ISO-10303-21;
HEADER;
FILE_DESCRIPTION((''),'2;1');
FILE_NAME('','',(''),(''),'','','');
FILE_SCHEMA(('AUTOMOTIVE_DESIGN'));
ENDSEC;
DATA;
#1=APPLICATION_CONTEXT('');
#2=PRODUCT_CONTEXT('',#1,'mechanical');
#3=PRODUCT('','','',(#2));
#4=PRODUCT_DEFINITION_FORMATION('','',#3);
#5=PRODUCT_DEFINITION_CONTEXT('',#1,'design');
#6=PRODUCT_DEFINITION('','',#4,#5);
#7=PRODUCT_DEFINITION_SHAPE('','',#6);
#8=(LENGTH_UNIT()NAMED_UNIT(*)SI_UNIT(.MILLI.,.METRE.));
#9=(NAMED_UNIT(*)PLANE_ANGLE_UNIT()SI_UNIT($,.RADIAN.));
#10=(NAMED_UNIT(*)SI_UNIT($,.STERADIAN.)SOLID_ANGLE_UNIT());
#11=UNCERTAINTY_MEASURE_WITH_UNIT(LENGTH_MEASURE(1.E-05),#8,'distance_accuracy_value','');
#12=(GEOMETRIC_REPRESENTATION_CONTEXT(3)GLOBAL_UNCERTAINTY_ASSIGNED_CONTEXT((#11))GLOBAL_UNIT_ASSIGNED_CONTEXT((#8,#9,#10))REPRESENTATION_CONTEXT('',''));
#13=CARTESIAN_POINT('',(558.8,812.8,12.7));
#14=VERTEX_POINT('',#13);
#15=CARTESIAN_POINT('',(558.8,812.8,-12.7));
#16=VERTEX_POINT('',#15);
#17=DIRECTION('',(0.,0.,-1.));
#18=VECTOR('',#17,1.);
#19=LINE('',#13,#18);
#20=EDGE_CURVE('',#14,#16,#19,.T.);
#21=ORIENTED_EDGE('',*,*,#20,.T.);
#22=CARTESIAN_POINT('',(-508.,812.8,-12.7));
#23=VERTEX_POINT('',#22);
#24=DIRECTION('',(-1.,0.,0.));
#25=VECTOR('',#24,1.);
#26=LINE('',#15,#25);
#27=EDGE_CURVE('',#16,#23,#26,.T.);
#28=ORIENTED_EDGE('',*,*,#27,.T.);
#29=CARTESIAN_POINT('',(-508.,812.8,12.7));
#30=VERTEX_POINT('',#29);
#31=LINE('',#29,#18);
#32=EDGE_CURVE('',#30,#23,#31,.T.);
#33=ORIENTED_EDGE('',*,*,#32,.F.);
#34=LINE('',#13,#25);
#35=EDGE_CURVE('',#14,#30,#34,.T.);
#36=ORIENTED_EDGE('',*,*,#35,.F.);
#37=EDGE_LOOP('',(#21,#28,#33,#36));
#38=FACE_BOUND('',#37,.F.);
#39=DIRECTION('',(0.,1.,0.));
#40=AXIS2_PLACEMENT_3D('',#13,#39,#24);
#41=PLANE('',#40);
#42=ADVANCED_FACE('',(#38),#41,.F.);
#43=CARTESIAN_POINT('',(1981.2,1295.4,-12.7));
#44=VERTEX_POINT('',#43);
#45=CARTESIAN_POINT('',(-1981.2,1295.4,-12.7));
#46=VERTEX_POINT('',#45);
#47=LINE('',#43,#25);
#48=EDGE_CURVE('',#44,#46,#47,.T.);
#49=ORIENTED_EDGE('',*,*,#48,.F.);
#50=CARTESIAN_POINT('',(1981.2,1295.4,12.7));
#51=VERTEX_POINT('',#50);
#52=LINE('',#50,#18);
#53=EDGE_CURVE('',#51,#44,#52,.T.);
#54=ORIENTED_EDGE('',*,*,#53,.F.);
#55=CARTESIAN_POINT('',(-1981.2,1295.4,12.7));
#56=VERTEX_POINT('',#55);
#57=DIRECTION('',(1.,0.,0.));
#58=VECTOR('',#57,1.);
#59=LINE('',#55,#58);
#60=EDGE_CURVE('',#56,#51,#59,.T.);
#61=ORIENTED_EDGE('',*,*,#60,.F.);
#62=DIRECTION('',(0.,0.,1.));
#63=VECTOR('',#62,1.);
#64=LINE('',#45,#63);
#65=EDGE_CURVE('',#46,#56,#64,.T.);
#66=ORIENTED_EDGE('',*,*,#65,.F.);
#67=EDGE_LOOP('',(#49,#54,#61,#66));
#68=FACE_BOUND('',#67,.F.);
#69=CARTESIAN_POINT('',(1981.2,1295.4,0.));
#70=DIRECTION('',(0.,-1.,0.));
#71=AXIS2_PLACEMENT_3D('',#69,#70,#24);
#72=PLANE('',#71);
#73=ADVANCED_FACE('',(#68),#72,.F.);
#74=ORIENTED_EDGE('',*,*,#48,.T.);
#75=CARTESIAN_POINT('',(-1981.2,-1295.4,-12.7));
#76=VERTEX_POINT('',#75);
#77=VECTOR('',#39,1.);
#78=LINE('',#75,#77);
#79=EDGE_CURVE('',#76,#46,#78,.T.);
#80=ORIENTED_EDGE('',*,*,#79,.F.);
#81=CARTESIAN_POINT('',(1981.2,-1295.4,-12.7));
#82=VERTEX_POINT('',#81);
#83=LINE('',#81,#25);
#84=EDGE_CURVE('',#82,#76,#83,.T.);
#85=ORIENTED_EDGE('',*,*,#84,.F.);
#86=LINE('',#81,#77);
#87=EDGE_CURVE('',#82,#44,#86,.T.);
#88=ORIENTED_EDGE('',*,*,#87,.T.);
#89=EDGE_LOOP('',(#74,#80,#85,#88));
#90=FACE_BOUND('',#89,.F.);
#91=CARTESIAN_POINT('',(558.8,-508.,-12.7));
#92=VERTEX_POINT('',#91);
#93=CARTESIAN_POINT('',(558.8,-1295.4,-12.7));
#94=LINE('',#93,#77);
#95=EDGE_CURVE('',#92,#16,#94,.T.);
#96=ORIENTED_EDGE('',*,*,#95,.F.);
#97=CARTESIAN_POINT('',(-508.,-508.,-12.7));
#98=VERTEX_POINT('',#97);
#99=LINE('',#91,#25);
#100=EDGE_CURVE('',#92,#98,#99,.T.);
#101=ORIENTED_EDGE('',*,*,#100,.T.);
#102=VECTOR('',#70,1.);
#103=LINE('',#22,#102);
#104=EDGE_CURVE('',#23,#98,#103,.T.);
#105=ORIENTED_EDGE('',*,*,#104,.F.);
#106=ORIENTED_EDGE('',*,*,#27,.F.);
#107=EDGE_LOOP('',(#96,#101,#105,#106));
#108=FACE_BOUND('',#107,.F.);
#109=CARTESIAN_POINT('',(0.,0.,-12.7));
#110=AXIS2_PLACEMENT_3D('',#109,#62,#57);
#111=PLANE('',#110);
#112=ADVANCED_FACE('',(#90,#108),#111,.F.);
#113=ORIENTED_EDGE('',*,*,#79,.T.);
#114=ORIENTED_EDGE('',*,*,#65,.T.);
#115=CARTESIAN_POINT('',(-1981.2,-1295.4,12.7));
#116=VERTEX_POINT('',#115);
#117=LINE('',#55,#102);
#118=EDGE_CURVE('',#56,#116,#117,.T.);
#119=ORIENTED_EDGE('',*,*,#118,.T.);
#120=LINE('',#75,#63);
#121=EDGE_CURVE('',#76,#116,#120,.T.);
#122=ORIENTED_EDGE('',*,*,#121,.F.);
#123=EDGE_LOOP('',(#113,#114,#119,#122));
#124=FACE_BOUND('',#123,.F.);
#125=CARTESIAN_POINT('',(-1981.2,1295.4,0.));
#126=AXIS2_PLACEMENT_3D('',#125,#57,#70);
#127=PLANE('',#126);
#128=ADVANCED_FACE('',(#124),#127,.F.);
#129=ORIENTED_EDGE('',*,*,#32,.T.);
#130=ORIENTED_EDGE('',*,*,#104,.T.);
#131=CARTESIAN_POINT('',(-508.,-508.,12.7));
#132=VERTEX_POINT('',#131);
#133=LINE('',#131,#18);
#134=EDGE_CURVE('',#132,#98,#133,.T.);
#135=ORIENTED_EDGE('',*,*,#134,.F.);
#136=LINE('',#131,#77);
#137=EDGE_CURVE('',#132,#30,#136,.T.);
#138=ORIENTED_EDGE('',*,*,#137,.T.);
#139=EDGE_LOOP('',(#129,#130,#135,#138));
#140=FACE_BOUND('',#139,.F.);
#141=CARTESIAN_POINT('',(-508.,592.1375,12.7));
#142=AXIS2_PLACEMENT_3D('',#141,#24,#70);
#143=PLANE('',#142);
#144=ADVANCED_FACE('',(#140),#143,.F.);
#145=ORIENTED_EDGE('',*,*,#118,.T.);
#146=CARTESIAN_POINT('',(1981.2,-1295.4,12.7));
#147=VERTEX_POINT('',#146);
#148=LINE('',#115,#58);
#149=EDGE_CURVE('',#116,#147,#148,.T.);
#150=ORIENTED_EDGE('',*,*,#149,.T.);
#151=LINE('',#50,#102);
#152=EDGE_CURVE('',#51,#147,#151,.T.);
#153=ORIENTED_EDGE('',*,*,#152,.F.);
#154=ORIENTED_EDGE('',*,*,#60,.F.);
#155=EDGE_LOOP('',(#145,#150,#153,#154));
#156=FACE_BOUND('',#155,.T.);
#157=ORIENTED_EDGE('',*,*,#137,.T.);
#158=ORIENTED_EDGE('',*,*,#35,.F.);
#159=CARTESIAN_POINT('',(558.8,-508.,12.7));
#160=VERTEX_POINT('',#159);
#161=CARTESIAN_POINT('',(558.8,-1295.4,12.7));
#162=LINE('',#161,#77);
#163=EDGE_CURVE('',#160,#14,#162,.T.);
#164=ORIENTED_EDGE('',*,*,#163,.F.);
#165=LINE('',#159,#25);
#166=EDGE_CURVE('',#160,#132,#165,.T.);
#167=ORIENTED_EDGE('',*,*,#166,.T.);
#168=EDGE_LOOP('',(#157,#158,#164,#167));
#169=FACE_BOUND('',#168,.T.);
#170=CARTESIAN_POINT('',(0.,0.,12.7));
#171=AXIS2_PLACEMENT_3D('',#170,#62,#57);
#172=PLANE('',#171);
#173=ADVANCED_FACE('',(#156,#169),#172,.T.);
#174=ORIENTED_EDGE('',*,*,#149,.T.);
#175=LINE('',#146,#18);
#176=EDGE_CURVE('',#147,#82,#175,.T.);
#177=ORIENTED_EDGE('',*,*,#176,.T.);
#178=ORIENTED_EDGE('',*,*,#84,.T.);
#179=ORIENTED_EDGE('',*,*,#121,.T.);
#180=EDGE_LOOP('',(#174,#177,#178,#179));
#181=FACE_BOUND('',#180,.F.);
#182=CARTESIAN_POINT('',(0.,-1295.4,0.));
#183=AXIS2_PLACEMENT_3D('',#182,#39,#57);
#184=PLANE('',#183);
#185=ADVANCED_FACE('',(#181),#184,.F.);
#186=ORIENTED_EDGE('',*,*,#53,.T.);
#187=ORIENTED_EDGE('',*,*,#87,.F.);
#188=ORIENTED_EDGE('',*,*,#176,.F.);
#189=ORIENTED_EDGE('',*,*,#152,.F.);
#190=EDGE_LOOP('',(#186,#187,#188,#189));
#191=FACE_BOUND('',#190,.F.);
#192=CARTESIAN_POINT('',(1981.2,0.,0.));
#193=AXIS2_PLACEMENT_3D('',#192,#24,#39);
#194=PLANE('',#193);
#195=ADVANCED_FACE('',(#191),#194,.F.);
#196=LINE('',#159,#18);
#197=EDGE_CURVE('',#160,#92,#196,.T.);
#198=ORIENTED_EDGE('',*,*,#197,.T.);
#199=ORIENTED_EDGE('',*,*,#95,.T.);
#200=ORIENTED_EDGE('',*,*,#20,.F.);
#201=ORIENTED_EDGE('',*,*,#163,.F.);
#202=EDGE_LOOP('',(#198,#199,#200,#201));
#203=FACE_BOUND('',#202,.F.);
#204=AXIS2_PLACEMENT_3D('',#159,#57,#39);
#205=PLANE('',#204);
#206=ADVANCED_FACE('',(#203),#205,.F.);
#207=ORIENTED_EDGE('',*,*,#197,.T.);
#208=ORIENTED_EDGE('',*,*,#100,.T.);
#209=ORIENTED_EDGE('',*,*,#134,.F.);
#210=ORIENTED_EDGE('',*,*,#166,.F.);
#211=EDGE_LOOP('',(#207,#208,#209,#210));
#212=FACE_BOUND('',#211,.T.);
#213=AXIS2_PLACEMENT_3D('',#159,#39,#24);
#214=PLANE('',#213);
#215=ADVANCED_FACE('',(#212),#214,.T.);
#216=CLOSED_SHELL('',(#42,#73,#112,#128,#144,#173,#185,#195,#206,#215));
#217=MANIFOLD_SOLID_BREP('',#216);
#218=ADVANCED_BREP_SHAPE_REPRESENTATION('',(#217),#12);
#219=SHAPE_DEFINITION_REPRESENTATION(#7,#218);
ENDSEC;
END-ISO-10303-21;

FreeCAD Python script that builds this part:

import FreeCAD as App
import Part
import Sketcher
Q = App.Units.Quantity

doc = App.newDocument("Part")
body = doc.addObject("PartDesign::Body", "Body")

sketch1 = doc.addObject("Sketcher::SketchObject", "Sketch")
body.addObject(sketch1)
sketch1.AttachmentSupport = (doc.XY_Plane, [""])
sketch1.MapMode = "FlatFace"
sketch1.addGeometry([
    Part.LineSegment(App.Vector(1981, 1295, 0), App.Vector(-1981, 1295, 0)),
    Part.LineSegment(App.Vector(-1981, 1295, 0), App.Vector(-1981, -1295, 0)),
    Part.LineSegment(App.Vector(-1981, -1295, 0), App.Vector(1981, -1295, 0)),
    Part.LineSegment(App.Vector(1981, -1295, 0), App.Vector(1981, 1295, 0)),
], False)
sketch1.addConstraint([
    Sketcher.Constraint("Coincident", 0, 2, 1, 1),
    Sketcher.Constraint("Coincident", 1, 2, 2, 1),
    Sketcher.Constraint("Coincident", 2, 2, 3, 1),
    Sketcher.Constraint("Coincident", 3, 2, 0, 1),
    Sketcher.Constraint("Horizontal", 0),
    Sketcher.Constraint("Vertical", 1),
    Sketcher.Constraint("Horizontal", 2),
    Sketcher.Constraint("Vertical", 3),
    Sketcher.Constraint("Symmetric", 0, 2, 2, 2, -1, 1),
    Sketcher.Constraint("DistanceX", 0, 2, 0, 1, Q("156 in")),
    Sketcher.Constraint("DistanceY", 1, 2, 1, 1, Q("102 in")),
])
pad1 = doc.addObject("PartDesign::Pad", "Pad")
body.addObject(pad1)
pad1.Profile = sketch1
pad1.Length = Q("1 in")
pad1.Midplane = True

sketch2 = doc.addObject("Sketcher::SketchObject", "Sketch001")
body.addObject(sketch2)
sketch2.AttachmentSupport = (doc.XY_Plane, [""])
sketch2.MapMode = "FlatFace"
sketch2.AttachmentOffset = App.Placement(App.Vector(0, 0, 0.5 * 25.4), App.Rotation())
sketch2.addGeometry([
    Part.LineSegment(App.Vector(-508, 813, 0), App.Vector(-508, -508, 0)),
    Part.LineSegment(App.Vector(-508, -508, 0), App.Vector(559, -508, 0)),
    Part.LineSegment(App.Vector(559, -508, 0), App.Vector(559, 813, 0)),
    Part.LineSegment(App.Vector(559, 813, 0), App.Vector(-508, 813, 0)),
], False)
sketch2.addConstraint([
    Sketcher.Constraint("Coincident", 0, 2, 1, 1),
    Sketcher.Constraint("Coincident", 1, 2, 2, 1),
    Sketcher.Constraint("Coincident", 2, 2, 3, 1),
    Sketcher.Constraint("Coincident", 3, 2, 0, 1),
    Sketcher.Constraint("Vertical", 0),
    Sketcher.Constraint("Horizontal", 1),
    Sketcher.Constraint("Vertical", 2),
    Sketcher.Constraint("Horizontal", 3),
    Sketcher.Constraint("DistanceY", 0, 2, 0, 1, Q("52 in")),
    Sketcher.Constraint("DistanceX", 1, 1, 1, 2, Q("42 in")),
    Sketcher.Constraint("DistanceX", 0, 2, -1, 1, Q("20 in")),
    Sketcher.Constraint("DistanceY", 0, 2, -1, 1, Q("20 in")),
])
pocket1 = doc.addObject("PartDesign::Pocket", "Pocket")
body.addObject(pocket1)
pocket1.Profile = sketch2
pocket1.Length = Q("1 in")

doc.recompute()
